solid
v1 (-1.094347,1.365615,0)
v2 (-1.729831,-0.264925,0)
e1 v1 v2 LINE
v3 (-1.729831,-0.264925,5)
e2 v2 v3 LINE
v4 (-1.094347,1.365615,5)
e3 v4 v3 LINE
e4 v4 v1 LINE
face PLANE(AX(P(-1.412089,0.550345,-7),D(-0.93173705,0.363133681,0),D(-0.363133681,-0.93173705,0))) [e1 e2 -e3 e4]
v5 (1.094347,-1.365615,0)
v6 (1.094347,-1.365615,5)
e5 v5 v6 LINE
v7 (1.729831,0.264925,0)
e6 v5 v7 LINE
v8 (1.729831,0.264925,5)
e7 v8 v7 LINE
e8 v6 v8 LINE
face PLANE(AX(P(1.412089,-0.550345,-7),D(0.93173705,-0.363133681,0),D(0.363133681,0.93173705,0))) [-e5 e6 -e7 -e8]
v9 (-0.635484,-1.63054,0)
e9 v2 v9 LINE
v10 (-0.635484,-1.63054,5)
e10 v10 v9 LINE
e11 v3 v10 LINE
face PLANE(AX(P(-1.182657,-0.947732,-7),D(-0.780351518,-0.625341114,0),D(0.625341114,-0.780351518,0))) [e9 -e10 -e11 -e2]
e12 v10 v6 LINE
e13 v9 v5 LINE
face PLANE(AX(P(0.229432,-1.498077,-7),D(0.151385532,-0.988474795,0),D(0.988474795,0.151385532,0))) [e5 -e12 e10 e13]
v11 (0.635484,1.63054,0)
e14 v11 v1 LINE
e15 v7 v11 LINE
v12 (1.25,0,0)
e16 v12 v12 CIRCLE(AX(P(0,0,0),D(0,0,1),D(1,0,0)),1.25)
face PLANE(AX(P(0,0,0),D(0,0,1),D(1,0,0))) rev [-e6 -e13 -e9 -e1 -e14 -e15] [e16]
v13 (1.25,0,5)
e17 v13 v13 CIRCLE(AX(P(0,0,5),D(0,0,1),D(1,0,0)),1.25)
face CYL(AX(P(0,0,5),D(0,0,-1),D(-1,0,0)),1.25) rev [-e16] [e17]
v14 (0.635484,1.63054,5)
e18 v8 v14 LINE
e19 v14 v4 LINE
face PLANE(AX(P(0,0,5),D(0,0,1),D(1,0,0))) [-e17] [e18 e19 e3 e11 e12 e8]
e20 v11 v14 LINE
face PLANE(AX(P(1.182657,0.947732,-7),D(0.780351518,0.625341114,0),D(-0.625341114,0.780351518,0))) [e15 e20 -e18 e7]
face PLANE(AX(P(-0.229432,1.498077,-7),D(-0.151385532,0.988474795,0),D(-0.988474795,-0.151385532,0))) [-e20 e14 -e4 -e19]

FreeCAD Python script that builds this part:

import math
import FreeCAD as App
import Part
import Sketcher

V = App.Vector

doc = App.newDocument("Part")
params = doc.addObject("Spreadsheet::Sheet", "Params")
for row, (alias, value) in enumerate([
    ("sketch1_diameter", "3.5 mm"),
    ("sketch1_diameter2", "2.5 mm"),
    ("pad1_length", "5 mm"),
    ("sketch2_radius", "1.75 mm"),
    ("pocket1_length", "12 mm"),
], start=1):
    params.set(f"A{row}", alias)
    params.set(f"B{row}", "=" + value)
    params.setAlias(f"B{row}", alias)

body = doc.addObject("PartDesign::Body", "Body")

sketch1 = doc.addObject("Sketcher::SketchObject", "Sketch")
body.addObject(sketch1)
sketch1.AttachmentSupport = (doc.XY_Plane, [""])
sketch1.MapMode = "FlatFace"
sketch1.addGeometry([
    Part.Circle(V(0, 0, 0), V(0, 0, 1), 1.75),
    Part.Circle(V(0, 0, 0), V(0, 0, 1), 1.25),
], False)
sketch1.addConstraint([
    Sketcher.Constraint("Coincident", 0, 3, -1, 1),
    Sketcher.Constraint("Coincident", 1, 3, -1, 1),
    Sketcher.Constraint("Diameter", 0, 3.5),
    Sketcher.Constraint("Diameter", 1, 2.5),
])
sketch1.setExpression("Constraints[2]", "Params.sketch1_diameter")
sketch1.setExpression("Constraints[3]", "Params.sketch1_diameter2")
pad1 = doc.addObject("PartDesign::Pad", "Pad")
body.addObject(pad1)
pad1.Profile = sketch1
pad1.setExpression("Length", "Params.pad1_length")

sketch2 = doc.addObject("Sketcher::SketchObject", "Sketch001")
body.addObject(sketch2)
sketch2.AttachmentSupport = (doc.XY_Plane, [""])
sketch2.MapMode = "FlatFace"
sketch2.AttachmentOffset = App.Placement(V(0, 0, -7), App.Rotation())
sketch2.addGeometry([
    Part.ArcOfCircle(Part.Circle(V(0, 0, 0), V(0, 0, 1), 1.75), math.radians(128.707229), math.radians(188.707229)),
    Part.LineSegment(V(-1.729831, -0.264925, 0), V(-1.094347, 1.365615, 0)),
    Part.LineSegment(V(-1.094347, 1.365615, 0), V(0.635484, 1.63054, 0)),
    Part.ArcOfCircle(Part.Circle(V(0, 0, 0), V(0, 0, 1), 1.75), math.radians(68.707229), math.radians(128.707229)),
    Part.LineSegment(V(0.635484, 1.63054, 0), V(1.729831, 0.264925, 0)),
    Part.ArcOfCircle(Part.Circle(V(0, 0, 0), V(0, 0, 1), 1.75), math.radians(8.707229), math.radians(68.707229)),
    Part.LineSegment(V(1.729831, 0.264925, 0), V(1.094347, -1.365615, 0)),
    Part.ArcOfCircle(Part.Circle(V(0, 0, 0), V(0, 0, 1), 1.75), math.radians(-51.292771), math.radians(0)),
    Part.ArcOfCircle(Part.Circle(V(0, 0, 0), V(0, 0, 1), 1.75), math.radians(0), math.radians(8.707229)),
    Part.ArcOfCircle(Part.Circle(V(0, 0, 0), V(0, 0, 1), 1.75), math.radians(-111.292771), math.radians(-51.292771)),
    Part.LineSegment(V(1.094347, -1.365615, 0), V(-0.635484, -1.63054, 0)),
    Part.ArcOfCircle(Part.Circle(V(0, 0, 0), V(0, 0, 1), 1.75), math.radians(-171.292771), math.radians(-111.292771)),
    Part.LineSegment(V(-0.635484, -1.63054, 0), V(-1.729831, -0.264925, 0)),
], False)
sketch2.addConstraint([
    Sketcher.Constraint("Coincident", 0, 1, 1, 2),
    Sketcher.Constraint("Coincident", 1, 1, 0, 2),
    Sketcher.Constraint("Coincident", 2, 1, 3, 2),
    Sketcher.Constraint("Coincident", 3, 1, 2, 2),
    Sketcher.Constraint("Coincident", 4, 1, 5, 2),
    Sketcher.Constraint("Coincident", 5, 1, 4, 2),
    Sketcher.Constraint("Coincident", 6, 2, 7, 1),
    Sketcher.Constraint("Tangent", 7, 2, 8, 1),
    Sketcher.Constraint("Coincident", 8, 2, 6, 1),
    Sketcher.Constraint("Coincident", 9, 1, 10, 2),
    Sketcher.Constraint("Coincident", 10, 1, 9, 2),
    Sketcher.Constraint("Coincident", 11, 1, 12, 2),
    Sketcher.Constraint("Coincident", 12, 1, 11, 2),
    Sketcher.Constraint("Coincident", 0, 3, -1, 1),
    Sketcher.Constraint("Coincident", 3, 3, -1, 1),
    Sketcher.Constraint("Coincident", 5, 3, -1, 1),
    Sketcher.Constraint("Coincident", 7, 3, -1, 1),
    Sketcher.Constraint("Coincident", 9, 3, -1, 1),
    Sketcher.Constraint("Coincident", 11, 3, -1, 1),
    Sketcher.Constraint("Coincident", 2, 1, 0, 1),
    Sketcher.Constraint("Coincident", 4, 1, 3, 1),
    Sketcher.Constraint("Coincident", 8, 2, 5, 1),
    Sketcher.Constraint("Coincident", 10, 1, 6, 2),
    Sketcher.Constraint("Coincident", 11, 1, 1, 1),
    Sketcher.Constraint("Coincident", 12, 1, 9, 1),
    Sketcher.Constraint("PointOnObject", 7, 2, -1),
    Sketcher.Constraint("Parallel", 1, 6),
    Sketcher.Constraint("Parallel", 2, 10),
    Sketcher.Constraint("Equal", 1, 2),
    Sketcher.Constraint("Equal", 2, 4),
    Sketcher.Constraint("Equal", 4, 6),
    Sketcher.Constraint("Radius", 0, 1.75),
    Sketcher.Constraint("DistanceX", 1, 1, -1, 1, 1.729831),
])
sketch2.setExpression("Constraints[31]", "Params.sketch2_radius")
pocket1 = doc.addObject("PartDesign::Pocket", "Pocket")
body.addObject(pocket1)
pocket1.Profile = sketch2
pocket1.setExpression("Length", "Params.pocket1_length")
pocket1.Reversed = True

doc.recompute()
